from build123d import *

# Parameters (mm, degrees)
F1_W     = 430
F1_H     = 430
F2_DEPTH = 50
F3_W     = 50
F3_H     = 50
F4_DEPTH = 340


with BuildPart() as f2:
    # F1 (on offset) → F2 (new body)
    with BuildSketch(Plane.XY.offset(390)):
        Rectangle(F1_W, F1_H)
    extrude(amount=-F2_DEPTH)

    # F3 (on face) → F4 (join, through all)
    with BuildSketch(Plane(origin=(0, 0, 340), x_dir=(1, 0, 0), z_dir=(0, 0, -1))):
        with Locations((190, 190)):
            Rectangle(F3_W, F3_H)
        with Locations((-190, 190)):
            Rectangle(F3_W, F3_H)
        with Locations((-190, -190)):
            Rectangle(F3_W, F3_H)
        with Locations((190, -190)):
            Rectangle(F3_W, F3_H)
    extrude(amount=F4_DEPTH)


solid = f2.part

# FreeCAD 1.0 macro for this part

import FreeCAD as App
import Part
import Sketcher
Q = App.Units.Quantity

doc = App.newDocument("Part")
params = doc.addObject("Spreadsheet::Sheet", "Params")
for row, (alias, value) in enumerate([
    ("sketch1_width", "430 mm"),
    ("pad1_length", "50 mm"),
    ("sketch2_width", "50 mm"),
    ("pad2_length", "340 mm"),
], start=1):
    params.set(f"A{row}", alias)
    params.set(f"B{row}", "=" + value)
    params.setAlias(f"B{row}", alias)

body = doc.addObject("PartDesign::Body", "Body")

sketch1 = body.newObject("Sketcher::SketchObject", "Sketch")
sketch1.AttachmentSupport = (doc.getObject("XY_Plane"), [""])
sketch1.MapMode = "FlatFace"
sketch1.AttachmentOffset = App.Placement(App.Vector(0, 0, 390), App.Rotation())
sketch1.addGeometry(Part.LineSegment(App.Vector(-215, 215, 0), App.Vector(-215, -215, 0)), False)
sketch1.addGeometry(Part.LineSegment(App.Vector(-215, -215, 0), App.Vector(215, -215, 0)), False)
sketch1.addGeometry(Part.LineSegment(App.Vector(215, -215, 0), App.Vector(215, 215, 0)), False)
sketch1.addGeometry(Part.LineSegment(App.Vector(215, 215, 0), App.Vector(-215, 215, 0)), False)
sketch1.addConstraint(Sketcher.Constraint("Coincident", 0, 2, 1, 1))
sketch1.addConstraint(Sketcher.Constraint("Coincident", 1, 2, 2, 1))
sketch1.addConstraint(Sketcher.Constraint("Coincident", 2, 2, 3, 1))
sketch1.addConstraint(Sketcher.Constraint("Coincident", 3, 2, 0, 1))
sketch1.addConstraint(Sketcher.Constraint("Vertical", 0))
sketch1.addConstraint(Sketcher.Constraint("Horizontal", 1))
sketch1.addConstraint(Sketcher.Constraint("Vertical", 2))
sketch1.addConstraint(Sketcher.Constraint("Horizontal", 3))
sketch1.addConstraint(Sketcher.Constraint("Symmetric", 0, 2, 2, 2, -1, 1))
sketch1.addConstraint(Sketcher.Constraint("Equal", 3, 0))
sketch1.addConstraint(Sketcher.Constraint("DistanceX", 1, 1, 1, 2, Q("430 mm")))
sketch1.setExpression("Constraints[10]", "Params.sketch1_width")
pad1 = body.newObject("PartDesign::Pad", "Pad")
pad1.Profile = sketch1
pad1.setExpression("Length", "Params.pad1_length")
pad1.Reversed = True

sketch2 = body.newObject("Sketcher::SketchObject", "Sketch001")
sketch2.AttachmentSupport = (doc.getObject("XY_Plane"), [""])
sketch2.MapMode = "FlatFace"
sketch2.AttachmentOffset = App.Placement(App.Vector(0, 0, 340), App.Rotation())
sketch2.addGeometry(Part.LineSegment(App.Vector(165, -215, 0), App.Vector(165, -165, 0)), False)
sketch2.addGeometry(Part.LineSegment(App.Vector(165, -165, 0), App.Vector(215, -165, 0)), False)
sketch2.addGeometry(Part.LineSegment(App.Vector(215, -165, 0), App.Vector(215, -215, 0)), False)
sketch2.addGeometry(Part.LineSegment(App.Vector(215, -215, 0), App.Vector(165, -215, 0)), False)
sketch2.addGeometry(Part.LineSegment(App.Vector(-215, -215, 0), App.Vector(-215, -165, 0)), False)
sketch2.addGeometry(Part.LineSegment(App.Vector(-215, -165, 0), App.Vector(-165, -165, 0)), False)
sketch2.addGeometry(Part.LineSegment(App.Vector(-165, -165, 0), App.Vector(-165, -215, 0)), False)
sketch2.addGeometry(Part.LineSegment(App.Vector(-165, -215, 0), App.Vector(-215, -215, 0)), False)
sketch2.addGeometry(Part.LineSegment(App.Vector(-215, 165, 0), App.Vector(-215, 215, 0)), False)
sketch2.addGeometry(Part.LineSegment(App.Vector(-215, 215, 0), App.Vector(-165, 215, 0)), False)
sketch2.addGeometry(Part.LineSegment(App.Vector(-165, 215, 0), App.Vector(-165, 165, 0)), False)
sketch2.addGeometry(Part.LineSegment(App.Vector(-165, 165, 0), App.Vector(-215, 165, 0)), False)
sketch2.addGeometry(Part.LineSegment(App.Vector(165, 165, 0), App.Vector(165, 215, 0)), False)
sketch2.addGeometry(Part.LineSegment(App.Vector(165, 215, 0), App.Vector(215, 215, 0)), False)
sketch2.addGeometry(Part.LineSegment(App.Vector(215, 215, 0), App.Vector(215, 165, 0)), False)
sketch2.addGeometry(Part.LineSegment(App.Vector(215, 165, 0), App.Vector(165, 165, 0)), False)
sketch2.addConstraint(Sketcher.Constraint("Coincident", 0, 2, 1, 1))
sketch2.addConstraint(Sketcher.Constraint("Coincident", 1, 2, 2, 1))
sketch2.addConstraint(Sketcher.Constraint("Coincident", 2, 2, 3, 1))
sketch2.addConstraint(Sketcher.Constraint("Coincident", 3, 2, 0, 1))
sketch2.addConstraint(Sketcher.Constraint("Coincident", 4, 2, 5, 1))
sketch2.addConstraint(Sketcher.Constraint("Coincident", 5, 2, 6, 1))
sketch2.addConstraint(Sketcher.Constraint("Coincident", 6, 2, 7, 1))
sketch2.addConstraint(Sketcher.Constraint("Coincident", 7, 2, 4, 1))
sketch2.addConstraint(Sketcher.Constraint("Coincident", 8, 2, 9, 1))
sketch2.addConstraint(Sketcher.Constraint("Coincident", 9, 2, 10, 1))
sketch2.addConstraint(Sketcher.Constraint("Coincident", 10, 2, 11, 1))
sketch2.addConstraint(Sketcher.Constraint("Coincident", 11, 2, 8, 1))
sketch2.addConstraint(Sketcher.Constraint("Coincident", 12, 2, 13, 1))
sketch2.addConstraint(Sketcher.Constraint("Coincident", 13, 2, 14, 1))
sketch2.addConstraint(Sketcher.Constraint("Coincident", 14, 2, 15, 1))
sketch2.addConstraint(Sketcher.Constraint("Coincident", 15, 2, 12, 1))
sketch2.addConstraint(Sketcher.Constraint("Vertical", 0))
sketch2.addConstraint(Sketcher.Constraint("Horizontal", 1))
sketch2.addConstraint(Sketcher.Constraint("Vertical", 2))
sketch2.addConstraint(Sketcher.Constraint("Horizontal", 3))
sketch2.addConstraint(Sketcher.Constraint("Vertical", 4))
sketch2.addConstraint(Sketcher.Constraint("Horizontal", 5))
sketch2.addConstraint(Sketcher.Constraint("Vertical", 6))
sketch2.addConstraint(Sketcher.Constraint("Horizontal", 7))
sketch2.addConstraint(Sketcher.Constraint("Vertical", 8))
sketch2.addConstraint(Sketcher.Constraint("Horizontal", 9))
sketch2.addConstraint(Sketcher.Constraint("Vertical", 10))
sketch2.addConstraint(Sketcher.Constraint("Horizontal", 11))
sketch2.addConstraint(Sketcher.Constraint("Vertical", 12))
sketch2.addConstraint(Sketcher.Constraint("Horizontal", 13))
sketch2.addConstraint(Sketcher.Constraint("Vertical", 14))
sketch2.addConstraint(Sketcher.Constraint("Horizontal", 15))
sketch2.addConstraint(Sketcher.Constraint("Symmetric", 2, 2, 8, 2, -1, 1))
sketch2.addConstraint(Sketcher.Constraint("Symmetric", 0, 2, 10, 2, -1, 1))
sketch2.addConstraint(Sketcher.Constraint("Symmetric", 6, 2, 12, 2, -1, 1))
sketch2.addConstraint(Sketcher.Constraint("Symmetric", 4, 2, 14, 2, -1, 1))
sketch2.addConstraint(Sketcher.Constraint("Symmetric", 1, 2, 4, 2, -2))
sketch2.addConstraint(Sketcher.Constraint("Symmetric", 3, 2, 6, 2, -2))
sketch2.addConstraint(Sketcher.Constraint("Equal", 15, 0))
sketch2.addConstraint(Sketcher.Constraint("DistanceX", 1, 1, 1, 2, Q("50 mm")))
sketch2.addConstraint(Sketcher.Constraint("DistanceX", -1, 1, 0, 2, Q("165 mm")))
sketch2.addConstraint(Sketcher.Constraint("DistanceY", 0, 2, -1, 1, Q("165 mm")))
sketch2.setExpression("Constraints[39]", "Params.sketch2_width")
pad2 = body.newObject("PartDesign::Pad", "Pad001")
pad2.Profile = sketch2
pad2.setExpression("Length", "Params.pad2_length")
pad2.Reversed = True

doc.recompute()
